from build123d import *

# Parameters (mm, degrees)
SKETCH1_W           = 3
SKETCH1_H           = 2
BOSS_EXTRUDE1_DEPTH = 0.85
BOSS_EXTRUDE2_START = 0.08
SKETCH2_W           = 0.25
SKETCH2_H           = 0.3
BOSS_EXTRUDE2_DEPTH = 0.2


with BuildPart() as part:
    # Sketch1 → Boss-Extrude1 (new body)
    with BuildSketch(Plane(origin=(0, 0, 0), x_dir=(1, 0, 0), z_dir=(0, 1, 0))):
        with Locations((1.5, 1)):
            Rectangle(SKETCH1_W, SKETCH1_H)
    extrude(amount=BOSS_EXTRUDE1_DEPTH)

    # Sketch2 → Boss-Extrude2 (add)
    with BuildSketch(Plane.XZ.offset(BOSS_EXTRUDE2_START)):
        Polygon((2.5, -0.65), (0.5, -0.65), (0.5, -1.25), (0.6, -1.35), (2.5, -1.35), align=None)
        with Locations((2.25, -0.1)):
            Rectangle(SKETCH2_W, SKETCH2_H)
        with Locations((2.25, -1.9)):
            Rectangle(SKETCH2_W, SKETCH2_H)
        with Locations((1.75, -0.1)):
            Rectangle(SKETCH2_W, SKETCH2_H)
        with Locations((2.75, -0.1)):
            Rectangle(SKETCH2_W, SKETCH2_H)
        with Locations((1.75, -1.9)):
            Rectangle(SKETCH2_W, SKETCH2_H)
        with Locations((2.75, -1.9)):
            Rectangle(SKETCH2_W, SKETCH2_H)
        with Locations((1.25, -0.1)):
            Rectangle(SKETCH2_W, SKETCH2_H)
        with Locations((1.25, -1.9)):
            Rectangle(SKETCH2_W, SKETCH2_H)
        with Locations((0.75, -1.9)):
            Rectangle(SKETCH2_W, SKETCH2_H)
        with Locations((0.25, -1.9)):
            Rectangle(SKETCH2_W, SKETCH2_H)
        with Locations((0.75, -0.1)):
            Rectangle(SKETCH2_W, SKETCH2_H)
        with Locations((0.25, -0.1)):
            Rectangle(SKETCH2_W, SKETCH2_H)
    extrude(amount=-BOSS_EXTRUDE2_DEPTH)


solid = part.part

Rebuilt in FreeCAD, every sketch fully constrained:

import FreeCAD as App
import Part
import Sketcher

V = App.Vector
Q = App.Units.Quantity


def add_polygon(sketch, points):
    """Adds a closed chain of lines whose ends are joined by coincident constraints."""
    first, n = sketch.GeometryCount, len(points)
    for a, b in zip(points, points[1:] + points[:1]):
        sketch.addGeometry(Part.LineSegment(App.Vector(*a, 0), App.Vector(*b, 0)), False)
    for i in range(n):
        sketch.addConstraint(Sketcher.Constraint("Coincident", first + i, 2, first + (i + 1) % n, 1))

doc = App.newDocument("Part")
body = doc.addObject("PartDesign::Body", "Body")

sketch1 = body.newObject("Sketcher::SketchObject", "Sketch")
sketch1.AttachmentSupport = (doc.getObject("XZ_Plane"), [""])
sketch1.MapMode = "FlatFace"
add_polygon(sketch1, [(0, -2), (0, 0), (3, 0), (3, -2)])
sketch1.addConstraint([
    Sketcher.Constraint("Vertical", 0),
    Sketcher.Constraint("Horizontal", 1),
    Sketcher.Constraint("Vertical", 2),
    Sketcher.Constraint("Horizontal", 3),
    Sketcher.Constraint("Coincident", 0, 2, -1, 1),
    Sketcher.Constraint("DistanceX", 1, 1, 1, 2, Q("3 mm")),
    Sketcher.Constraint("DistanceY", 0, 1, 0, 2, Q("2 mm")),
])
pad1 = body.newObject("PartDesign::Pad", "Pad")
pad1.Profile = sketch1
pad1.Length = 0.85
pad1.Reversed = True

sketch2 = body.newObject("Sketcher::SketchObject", "Sketch001")
sketch2.AttachmentSupport = (doc.getObject("XZ_Plane"), [""])
sketch2.MapMode = "FlatFace"
sketch2.AttachmentOffset = App.Placement(V(0, 0, 0.08), App.Rotation())
add_polygon(sketch2, [(2.5, -0.65), (0.5, -0.65), (0.5, -1.25), (0.6, -1.35), (2.5, -1.35)])
add_polygon(sketch2, [(2.125, 0.05), (2.125, -0.25), (2.375, -0.25), (2.375, 0.05)])
add_polygon(sketch2, [(2.125, -1.75), (2.125, -2.05), (2.375, -2.05), (2.375, -1.75)])
add_polygon(sketch2, [(1.625, 0.05), (1.625, -0.25), (1.875, -0.25), (1.875, 0.05)])
add_polygon(sketch2, [(2.625, 0.05), (2.625, -0.25), (2.875, -0.25), (2.875, 0.05)])
add_polygon(sketch2, [(1.625, -1.75), (1.625, -2.05), (1.875, -2.05), (1.875, -1.75)])
add_polygon(sketch2, [(2.625, -1.75), (2.625, -2.05), (2.875, -2.05), (2.875, -1.75)])
add_polygon(sketch2, [(1.125, 0.05), (1.125, -0.25), (1.375, -0.25), (1.375, 0.05)])
add_polygon(sketch2, [(1.125, -1.75), (1.125, -2.05), (1.375, -2.05), (1.375, -1.75)])
add_polygon(sketch2, [(0.625, -1.75), (0.625, -2.05), (0.875, -2.05), (0.875, -1.75)])
add_polygon(sketch2, [(0.125, -1.75), (0.125, -2.05), (0.375, -2.05), (0.375, -1.75)])
add_polygon(sketch2, [(0.625, 0.05), (0.625, -0.25), (0.875, -0.25), (0.875, 0.05)])
add_polygon(sketch2, [(0.125, 0.05), (0.125, -0.25), (0.375, -0.25), (0.375, 0.05)])
sketch2.addConstraint([
    Sketcher.Constraint("Horizontal", 0),
    Sketcher.Constraint("Vertical", 1),
    Sketcher.Constraint("Horizontal", 3),
    Sketcher.Constraint("Vertical", 4),
    Sketcher.Constraint("Vertical", 5),
    Sketcher.Constraint("Horizontal", 6),
    Sketcher.Constraint("Vertical", 7),
    Sketcher.Constraint("Horizontal", 8),
    Sketcher.Constraint("Vertical", 9),
    Sketcher.Constraint("Horizontal", 10),
    Sketcher.Constraint("Vertical", 11),
    Sketcher.Constraint("Horizontal", 12),
    Sketcher.Constraint("Vertical", 13),
    Sketcher.Constraint("Horizontal", 14),
    Sketcher.Constraint("Vertical", 15),
    Sketcher.Constraint("Horizontal", 16),
    Sketcher.Constraint("Vertical", 17),
    Sketcher.Constraint("Horizontal", 18),
    Sketcher.Constraint("Vertical", 19),
    Sketcher.Constraint("Horizontal", 20),
    Sketcher.Constraint("Vertical", 21),
    Sketcher.Constraint("Horizontal", 22),
    Sketcher.Constraint("Vertical", 23),
    Sketcher.Constraint("Horizontal", 24),
    Sketcher.Constraint("Vertical", 25),
    Sketcher.Constraint("Horizontal", 26),
    Sketcher.Constraint("Vertical", 27),
    Sketcher.Constraint("Horizontal", 28),
    Sketcher.Constraint("Vertical", 29),
    Sketcher.Constraint("Horizontal", 30),
    Sketcher.Constraint("Vertical", 31),
    Sketcher.Constraint("Horizontal", 32),
    Sketcher.Constraint("Vertical", 33),
    Sketcher.Constraint("Horizontal", 34),
    Sketcher.Constraint("Vertical", 35),
    Sketcher.Constraint("Horizontal", 36),
    Sketcher.Constraint("Vertical", 37),
    Sketcher.Constraint("Horizontal", 38),
    Sketcher.Constraint("Vertical", 39),
    Sketcher.Constraint("Horizontal", 40),
    Sketcher.Constraint("Vertical", 41),
    Sketcher.Constraint("Horizontal", 42),
    Sketcher.Constraint("Vertical", 43),
    Sketcher.Constraint("Horizontal", 44),
    Sketcher.Constraint("Vertical", 45),
    Sketcher.Constraint("Horizontal", 46),
    Sketcher.Constraint("Vertical", 47),
    Sketcher.Constraint("Horizontal", 48),
    Sketcher.Constraint("Vertical", 49),
    Sketcher.Constraint("Horizontal", 50),
    Sketcher.Constraint("Vertical", 51),
    Sketcher.Constraint("Horizontal", 52),
    Sketcher.Constraint("Horizontal", 6, 2, 13, 2),
    Sketcher.Constraint("Horizontal", 8, 2, 15, 2),
    Sketcher.Constraint("Horizontal", 14, 2, 17, 2),
    Sketcher.Constraint("Horizontal", 16, 2, 19, 2),
    Sketcher.Constraint("Horizontal", 10, 2, 21, 2),
    Sketcher.Constraint("Horizontal", 12, 2, 23, 2),
    Sketcher.Constraint("Horizontal", 22, 2, 25, 2),
    Sketcher.Constraint("Horizontal", 24, 2, 27, 2),
    Sketcher.Constraint("Horizontal", 18, 2, 29, 2),
    Sketcher.Constraint("Horizontal", 20, 2, 31, 2),
    Sketcher.Constraint("Horizontal", 26, 2, 33, 2),
    Sketcher.Constraint("Horizontal", 28, 2, 35, 2),
    Sketcher.Constraint("Horizontal", 34, 2, 37, 2),
    Sketcher.Constraint("Horizontal", 36, 2, 39, 2),
    Sketcher.Constraint("Horizontal", 38, 2, 41, 2),
    Sketcher.Constraint("Horizontal", 40, 2, 43, 2),
    Sketcher.Constraint("Horizontal", 30, 2, 45, 2),
    Sketcher.Constraint("Horizontal", 32, 2, 47, 2),
    Sketcher.Constraint("Horizontal", 46, 2, 49, 2),
    Sketcher.Constraint("Horizontal", 48, 2, 51, 2),
    Sketcher.Constraint("Vertical", 8, 2, 9, 2),
    Sketcher.Constraint("Vertical", 7, 2, 10, 2),
    Sketcher.Constraint("Vertical", 16, 2, 21, 2),
    Sketcher.Constraint("Vertical", 15, 2, 22, 2),
    Sketcher.Constraint("Vertical", 20, 2, 25, 2),
    Sketcher.Constraint("Vertical", 19, 2, 26, 2),
    Sketcher.Constraint("Vertical", 32, 2, 33, 2),
    Sketcher.Constraint("Vertical", 31, 2, 34, 2),
    Sketcher.Constraint("Vertical", 40, 2, 45, 2),
    Sketcher.Constraint("Vertical", 39, 2, 46, 2),
    Sketcher.Constraint("Vertical", 44, 2, 49, 2),
    Sketcher.Constraint("Vertical", 43, 2, 50, 2),
    Sketcher.Constraint("Equal", 12, 14),
    Sketcher.Constraint("Equal", 16, 18),
    Sketcher.Constraint("Equal", 28, 30),
    Sketcher.Constraint("Equal", 36, 38),
    Sketcher.Constraint("Equal", 40, 42),
    Sketcher.Constraint("Equal", 7, 9),
    Sketcher.Constraint("DistanceX", 0, 2, 0, 1, Q("2 mm")),
    Sketcher.Constraint("Angle", 2, Q("-45 deg")),
    Sketcher.Constraint("DistanceX", 3, 1, 3, 2, Q("1.9 mm")),
    Sketcher.Constraint("DistanceY", 1, 2, 1, 1, Q("0.6 mm")),
    Sketcher.Constraint("DistanceY", 5, 2, 5, 1, Q("0.3 mm")),
    Sketcher.Constraint("DistanceY", 1, 2, 5, 2, Q("1 mm")),
    Sketcher.Constraint("DistanceX", 6, 1, 6, 2, Q("0.25 mm")),
    Sketcher.Constraint("DistanceX", -1, 1, 0, 2, Q("0.5 mm")),
    Sketcher.Constraint("DistanceY", 9, 2, 3, 2, Q("0.7 mm")),
    Sketcher.Constraint("DistanceX", 13, 2, 5, 2, Q("0.5 mm")),
    Sketcher.Constraint("DistanceX", 5, 2, 17, 2, Q("0.5 mm")),
    Sketcher.Constraint("DistanceX", 29, 2, 13, 2, Q("0.5 mm")),
    Sketcher.Constraint("DistanceX", 37, 2, 33, 2, Q("0.5 mm")),
    Sketcher.Constraint("DistanceX", 41, 2, 37, 2, Q("0.5 mm")),
    Sketcher.Constraint("DistanceY", 0, 2, -1, 1, Q("0.65 mm")),
    Sketcher.Constraint("DistanceX", -1, 1, 5, 2, Q("2.125 mm")),
])
pad2 = body.newObject("PartDesign::Pad", "Pad001")
pad2.Profile = sketch2
pad2.Length = 0.2
pad2.Reversed = True

doc.recompute()
